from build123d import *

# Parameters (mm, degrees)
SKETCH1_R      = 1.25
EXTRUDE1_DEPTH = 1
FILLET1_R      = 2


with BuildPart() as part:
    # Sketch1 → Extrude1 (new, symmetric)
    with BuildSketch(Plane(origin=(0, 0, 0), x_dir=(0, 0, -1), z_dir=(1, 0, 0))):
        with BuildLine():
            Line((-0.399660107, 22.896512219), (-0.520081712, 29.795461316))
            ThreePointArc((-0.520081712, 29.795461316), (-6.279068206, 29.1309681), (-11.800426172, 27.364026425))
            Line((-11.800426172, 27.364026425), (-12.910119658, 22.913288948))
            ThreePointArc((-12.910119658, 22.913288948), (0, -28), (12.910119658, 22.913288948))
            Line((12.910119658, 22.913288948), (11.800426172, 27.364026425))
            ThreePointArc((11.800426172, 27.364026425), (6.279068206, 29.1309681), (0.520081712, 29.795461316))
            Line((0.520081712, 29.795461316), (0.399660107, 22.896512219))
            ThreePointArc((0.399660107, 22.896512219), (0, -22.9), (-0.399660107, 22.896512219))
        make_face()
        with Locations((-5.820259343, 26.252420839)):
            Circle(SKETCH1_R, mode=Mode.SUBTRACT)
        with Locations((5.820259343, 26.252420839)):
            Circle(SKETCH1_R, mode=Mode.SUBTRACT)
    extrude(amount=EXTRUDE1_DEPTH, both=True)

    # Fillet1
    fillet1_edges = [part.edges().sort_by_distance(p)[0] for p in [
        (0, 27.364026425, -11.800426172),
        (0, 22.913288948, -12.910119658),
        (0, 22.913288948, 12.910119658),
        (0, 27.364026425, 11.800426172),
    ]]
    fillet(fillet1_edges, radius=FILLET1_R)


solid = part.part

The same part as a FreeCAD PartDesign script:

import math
import FreeCAD as App
import Part
import Sketcher
Q = App.Units.Quantity


def edges_at(feature, points):
    """Names of the edges that pass closest to the given points."""
    edges = feature.Shape.Edges
    near = lambda p: min(range(len(edges)), key=lambda i: edges[i].distToShape(Part.Vertex(*p))[0])
    return sorted({f"Edge{near(p) + 1}" for p in points})

doc = App.newDocument("Part")
body = doc.addObject("PartDesign::Body", "Body")

# Sketch on YZ plane
sketch1 = body.newObject("Sketcher::SketchObject", "Sketch")
sketch1.AttachmentSupport = (doc.getObject("YZ_Plane"), [""])
sketch1.MapMode = "FlatFace"
sketch1.addGeometry(Part.LineSegment(App.Vector(22.9, 0.4, 0), App.Vector(29.8, 0.5, 0)), False)
sketch1.addGeometry(Part.ArcOfCircle(Part.Circle(App.Vector(0, 0, 0), App.Vector(0, 0, 1), 29.8), math.radians(1), math.radians(23)), False)
sketch1.addGeometry(Part.LineSegment(App.Vector(27.4, 11.8, 0), App.Vector(22.9, 12.9, 0)), False)
sketch1.addGeometry(Part.ArcOfCircle(Part.Circle(App.Vector(-0.9, 0, 0), App.Vector(0, 0, 1), 27.1), math.radians(28), math.radians(332)), False)
sketch1.addGeometry(Part.LineSegment(App.Vector(22.9, -12.9, 0), App.Vector(27.4, -11.8, 0)), False)
sketch1.addGeometry(Part.ArcOfCircle(Part.Circle(App.Vector(0, 0, 0), App.Vector(0, 0, 1), 29.8), math.radians(-23), math.radians(-1)), False)
sketch1.addGeometry(Part.LineSegment(App.Vector(29.8, -0.5, 0), App.Vector(22.9, -0.4, 0)), False)
sketch1.addGeometry(Part.ArcOfCircle(Part.Circle(App.Vector(0, 0, 0), App.Vector(0, 0, 1), 22.9), math.radians(1), math.radians(359)), False)
sketch1.addGeometry(Part.Circle(App.Vector(26.3, 5.8, 0), App.Vector(0, 0, 1), 1.2), False)
sketch1.addGeometry(Part.Circle(App.Vector(26.3, -5.8, 0), App.Vector(0, 0, 1), 1.2), False)
sketch1.addConstraint(Sketcher.Constraint("Coincident", 0, 2, 1, 1))
sketch1.addConstraint(Sketcher.Constraint("Coincident", 1, 2, 2, 1))
sketch1.addConstraint(Sketcher.Constraint("Coincident", 2, 2, 3, 1))
sketch1.addConstraint(Sketcher.Constraint("Coincident", 3, 2, 4, 1))
sketch1.addConstraint(Sketcher.Constraint("Coincident", 4, 2, 5, 1))
sketch1.addConstraint(Sketcher.Constraint("Coincident", 5, 2, 6, 1))
sketch1.addConstraint(Sketcher.Constraint("Coincident", 6, 2, 7, 2))
sketch1.addConstraint(Sketcher.Constraint("Coincident", 7, 1, 0, 1))
sketch1.addConstraint(Sketcher.Constraint("Coincident", 1, 3, -1, 1))
sketch1.addConstraint(Sketcher.Constraint("Coincident", 5, 3, -1, 1))
sketch1.addConstraint(Sketcher.Constraint("Coincident", 7, 3, -1, 1))
sketch1.addConstraint(Sketcher.Constraint("Equal", 1, 5))
sketch1.addConstraint(Sketcher.Constraint("Equal", 8, 9))
sketch1.addConstraint(Sketcher.Constraint("Symmetric", 8, 3, 9, 3, -1))
sketch1.addConstraint(Sketcher.Constraint("Symmetric", 2, 2, 3, 2, -1))
sketch1.addConstraint(Sketcher.Constraint("Vertical", 1, 2, 4, 2))
sketch1.addConstraint(Sketcher.Constraint("Vertical", 0, 2, 5, 2))
sketch1.addConstraint(Sketcher.Constraint("Vertical", 6, 2, 7, 1))
sketch1.addConstraint(Sketcher.Constraint("Diameter", 8, 2.5))
sketch1.addConstraint(Sketcher.Constraint("Radius", 1, 29.8))
sketch1.addConstraint(Sketcher.Constraint("Radius", 7, 22.9))
sketch1.addConstraint(Sketcher.Constraint("Angle", 0, Q("1 deg")))
sketch1.addConstraint(Sketcher.Constraint("Angle", 2, Q("166 deg")))
sketch1.addConstraint(Sketcher.Constraint("Radius", 3, 27.093459))
sketch1.addConstraint(Sketcher.Constraint("DistanceY", 3, 2, 0, 2, 13.430201))
sketch1.addConstraint(Sketcher.Constraint("DistanceY", 9, 3, 6, 2, 5.420599))
sketch1.addConstraint(Sketcher.Constraint("Distance", 2, 4.586991))
sketch1.addConstraint(Sketcher.Constraint("DistanceX", 3, 3, -1, 1, 0.906541))
sketch1.addConstraint(Sketcher.Constraint("DistanceX", -1, 1, 8, 3, 26.252421))
pad1 = body.newObject("PartDesign::Pad", "Pad")
pad1.Profile = sketch1
pad1.Length = 2
pad1.Midplane = True
doc.recompute()

fillet = body.newObject("PartDesign::Fillet", "Fillet")
fillet.Base = (pad1, edges_at(pad1, [
    (0, 27.364, -11.8),
    (0, 22.913, -12.91),
    (0, 22.913, 12.91),
    (0, 27.364, 11.8),
]))
fillet.Radius = 2

doc.recompute()
